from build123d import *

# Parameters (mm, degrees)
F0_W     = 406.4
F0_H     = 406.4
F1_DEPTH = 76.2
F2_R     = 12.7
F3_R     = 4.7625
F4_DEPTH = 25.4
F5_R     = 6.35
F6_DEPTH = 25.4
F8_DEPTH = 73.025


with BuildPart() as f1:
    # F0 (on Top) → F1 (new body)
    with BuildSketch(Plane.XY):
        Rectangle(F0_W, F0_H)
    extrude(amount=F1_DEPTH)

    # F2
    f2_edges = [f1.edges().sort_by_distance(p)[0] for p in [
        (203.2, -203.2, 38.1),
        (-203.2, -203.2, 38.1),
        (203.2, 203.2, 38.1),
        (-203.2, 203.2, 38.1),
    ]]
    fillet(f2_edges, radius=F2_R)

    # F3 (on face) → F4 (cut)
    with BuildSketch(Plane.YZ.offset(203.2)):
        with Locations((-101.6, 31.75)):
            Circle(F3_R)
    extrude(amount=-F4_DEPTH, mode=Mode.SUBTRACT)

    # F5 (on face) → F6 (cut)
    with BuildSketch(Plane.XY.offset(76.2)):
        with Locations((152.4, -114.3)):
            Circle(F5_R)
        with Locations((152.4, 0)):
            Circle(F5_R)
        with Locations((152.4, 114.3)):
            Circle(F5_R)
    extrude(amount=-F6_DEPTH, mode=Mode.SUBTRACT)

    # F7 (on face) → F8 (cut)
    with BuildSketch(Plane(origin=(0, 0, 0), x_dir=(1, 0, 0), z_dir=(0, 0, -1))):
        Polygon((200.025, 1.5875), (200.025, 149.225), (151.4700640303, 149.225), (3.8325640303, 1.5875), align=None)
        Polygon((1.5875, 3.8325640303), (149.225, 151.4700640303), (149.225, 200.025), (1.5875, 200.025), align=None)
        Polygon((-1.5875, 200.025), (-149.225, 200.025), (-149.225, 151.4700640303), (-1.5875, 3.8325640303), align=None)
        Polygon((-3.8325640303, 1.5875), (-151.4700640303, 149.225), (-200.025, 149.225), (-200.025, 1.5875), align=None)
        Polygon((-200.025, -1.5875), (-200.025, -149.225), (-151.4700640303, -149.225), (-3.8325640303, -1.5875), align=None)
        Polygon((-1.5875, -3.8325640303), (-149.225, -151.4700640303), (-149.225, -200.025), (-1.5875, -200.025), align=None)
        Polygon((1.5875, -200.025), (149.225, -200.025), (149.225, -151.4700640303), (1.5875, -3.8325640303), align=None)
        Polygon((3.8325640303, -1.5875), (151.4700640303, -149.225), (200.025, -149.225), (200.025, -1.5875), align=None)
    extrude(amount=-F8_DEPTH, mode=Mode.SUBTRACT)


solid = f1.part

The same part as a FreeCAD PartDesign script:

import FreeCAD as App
import Part
import Sketcher
from FreeCAD import Vector
Q = App.Units.Quantity


def edges_at(feature, points):
    """Names of the edges that pass closest to the given points."""
    edges = feature.Shape.Edges
    near = lambda p: min(range(len(edges)), key=lambda i: edges[i].distToShape(Part.Vertex(*p))[0])
    return sorted({f"Edge{near(p) + 1}" for p in points})


def add_polygon(sketch, points):
    """Adds a closed chain of lines whose ends are joined by coincident constraints."""
    first, n = sketch.GeometryCount, len(points)
    for a, b in zip(points, points[1:] + points[:1]):
        sketch.addGeometry(Part.LineSegment(App.Vector(*a, 0), App.Vector(*b, 0)), False)
    for i in range(n):
        sketch.addConstraint(Sketcher.Constraint("Coincident", first + i, 2, first + (i + 1) % n, 1))

doc = App.newDocument("Part")
body = doc.addObject("PartDesign::Body", "Body")

sketch1 = body.newObject("Sketcher::SketchObject", "Sketch")
sketch1.AttachmentSupport = (doc.getObject("XY_Plane"), [""])
sketch1.MapMode = "FlatFace"
add_polygon(sketch1, [(-203, 203), (-203, -203), (203, -203), (203, 203)])
sketch1.addConstraint([
    Sketcher.Constraint("Vertical", 0),
    Sketcher.Constraint("Horizontal", 1),
    Sketcher.Constraint("Vertical", 2),
    Sketcher.Constraint("Horizontal", 3),
    Sketcher.Constraint("Symmetric", 0, 2, 2, 2, -1, 1),
    Sketcher.Constraint("Equal", 3, 0),
    Sketcher.Constraint("DistanceX", 1, 1, 1, 2, Q("16 in")),
])
pad1 = body.newObject("PartDesign::Pad", "Pad")
pad1.Profile = sketch1
pad1.Length = Q("3 in")
doc.recompute()

fillet = body.newObject("PartDesign::Fillet", "Fillet")
fillet.Base = (pad1, edges_at(pad1, [
    (203.2, -203.2, 38.1),
    (-203.2, -203.2, 38.1),
    (203.2, 203.2, 38.1),
    (-203.2, 203.2, 38.1),
]))
fillet.Radius = Q("0.5 in")

sketch2 = body.newObject("Sketcher::SketchObject", "Sketch001")
sketch2.AttachmentSupport = (doc.getObject("YZ_Plane"), [""])
sketch2.MapMode = "FlatFace"
sketch2.AttachmentOffset = App.Placement(Vector(0, 0, 8 * 25.4), App.Rotation())
sketch2.addGeometry(Part.Circle(Vector(-101.6, 31.8, 0), Vector(0, 0, 1), 4.8), False)
sketch2.addConstraint([
    Sketcher.Constraint("Diameter", 0, Q("0.375 in")),
    Sketcher.Constraint("DistanceX", 0, 3, -1, 1, Q("4 in")),
    Sketcher.Constraint("DistanceY", -1, 1, 0, 3, Q("1.25 in")),
])
pocket1 = body.newObject("PartDesign::Pocket", "Pocket")
pocket1.Profile = sketch2
pocket1.Length = Q("1 in")

sketch3 = body.newObject("Sketcher::SketchObject", "Sketch002")
sketch3.AttachmentSupport = (doc.getObject("XY_Plane"), [""])
sketch3.MapMode = "FlatFace"
sketch3.AttachmentOffset = App.Placement(Vector(0, 0, 3 * 25.4), App.Rotation())
sketch3.addGeometry([
    Part.Circle(Vector(152, -114, 0), Vector(0, 0, 1), 6),
    Part.Circle(Vector(152, 0, 0), Vector(0, 0, 1), 6),
    Part.Circle(Vector(152, 114, 0), Vector(0, 0, 1), 6),
], False)
sketch3.addConstraint([
    Sketcher.Constraint("Equal", 0, 1),
    Sketcher.Constraint("Equal", 1, 2),
    Sketcher.Constraint("Symmetric", 0, 3, 2, 3, -1),
    Sketcher.Constraint("PointOnObject", 1, 3, -1),
    Sketcher.Constraint("Vertical", 0, 3, 1, 3),
    Sketcher.Constraint("Diameter", 0, Q("0.5 in")),
    Sketcher.Constraint("DistanceX", -1, 1, 0, 3, Q("6 in")),
    Sketcher.Constraint("DistanceY", 0, 3, 2, 3, Q("9 in")),
])
pocket2 = body.newObject("PartDesign::Pocket", "Pocket001")
pocket2.Profile = sketch3
pocket2.Length = Q("1 in")

sketch4 = body.newObject("Sketcher::SketchObject", "Sketch003")
sketch4.AttachmentSupport = (doc.getObject("XY_Plane"), [""])
sketch4.MapMode = "FlatFace"
add_polygon(sketch4, [(200, -2), (200, -149), (151, -149), (4, -2)])
add_polygon(sketch4, [(2, -4), (149, -151), (149, -200), (2, -200)])
add_polygon(sketch4, [(-2, -200), (-149, -200), (-149, -151), (-2, -4)])
add_polygon(sketch4, [(-4, -2), (-151, -149), (-200, -149), (-200, -2)])
add_polygon(sketch4, [(-200, 2), (-200, 149), (-151, 149), (-4, 2)])
add_polygon(sketch4, [(-2, 4), (-149, 151), (-149, 200), (-2, 200)])
add_polygon(sketch4, [(2, 200), (149, 200), (149, 151), (2, 4)])
add_polygon(sketch4, [(4, 2), (151, 149), (200, 149), (200, 2)])
sketch4.addConstraint([
    Sketcher.Constraint("Vertical", 0),
    Sketcher.Constraint("Horizontal", 1),
    Sketcher.Constraint("Horizontal", 3),
    Sketcher.Constraint("Vertical", 5),
    Sketcher.Constraint("Horizontal", 6),
    Sketcher.Constraint("Vertical", 7),
    Sketcher.Constraint("Horizontal", 8),
    Sketcher.Constraint("Vertical", 9),
    Sketcher.Constraint("Vertical", 11),
    Sketcher.Constraint("Horizontal", 13),
    Sketcher.Constraint("Vertical", 14),
    Sketcher.Constraint("Horizontal", 15),
    Sketcher.Constraint("Vertical", 16),
    Sketcher.Constraint("Horizontal", 17),
    Sketcher.Constraint("Horizontal", 19),
    Sketcher.Constraint("Vertical", 21),
    Sketcher.Constraint("Horizontal", 22),
    Sketcher.Constraint("Vertical", 23),
    Sketcher.Constraint("Horizontal", 24),
    Sketcher.Constraint("Vertical", 25),
    Sketcher.Constraint("Vertical", 27),
    Sketcher.Constraint("Horizontal", 29),
    Sketcher.Constraint("Vertical", 30),
    Sketcher.Constraint("Horizontal", 31),
    Sketcher.Constraint("Symmetric", 0, 2, 16, 2, -1, 1),
    Sketcher.Constraint("Symmetric", 2, 2, 18, 2, -1, 1),
    Sketcher.Constraint("Symmetric", 4, 2, 20, 2, -1, 1),
    Sketcher.Constraint("Symmetric", 6, 2, 22, 2, -1, 1),
    Sketcher.Constraint("Symmetric", 8, 2, 24, 2, -1, 1),
    Sketcher.Constraint("Symmetric", 10, 2, 26, 2, -1, 1),
    Sketcher.Constraint("Symmetric", 12, 2, 28, 2, -1, 1),
    Sketcher.Constraint("Symmetric", 14, 2, 30, 2, -1, 1),
    Sketcher.Constraint("Symmetric", 5, 2, 8, 2, -2),
    Sketcher.Constraint("Symmetric", 7, 2, 10, 2, -2),
    Sketcher.Constraint("Symmetric", 1, 2, 12, 2, -2),
    Sketcher.Constraint("Symmetric", 3, 2, 14, 2, -2),
    Sketcher.Constraint("Parallel", 2, 4),
    Sketcher.Constraint("Perpendicular", 4, 10),
    Sketcher.Constraint("Parallel", 10, 12),
    Sketcher.Constraint("Perpendicular", 12, 18),
    Sketcher.Constraint("Parallel", 18, 20),
    Sketcher.Constraint("Perpendicular", 20, 26),
    Sketcher.Constraint("Parallel", 26, 28),
    Sketcher.Constraint("Horizontal", 4, 2, 9, 2),
    Sketcher.Constraint("Equal", 24, 0),
    Sketcher.Constraint("Equal", 29, 5),
    Sketcher.Constraint("DistanceX", 4, 2, 0, 2, Q("2 in")),
    Sketcher.Constraint("DistanceY", 5, 2, 1, 2, Q("2 in")),
    Sketcher.Constraint("DistanceX", 6, 2, 6, 1, Q("5.8125 in")),
    Sketcher.Constraint("DistanceX", 8, 2, 5, 2, Q("11.75 in")),
    Sketcher.Constraint("DistanceY", 0, 2, -1, 1, Q("5.875 in")),
    Sketcher.Constraint("DistanceX", 1, 2, 1, 1, Q("48.554936 mm")),
])
pocket3 = body.newObject("PartDesign::Pocket", "Pocket002")
pocket3.Profile = sketch4
pocket3.Length = Q("2.875 in")
pocket3.Reversed = True

doc.recompute()
